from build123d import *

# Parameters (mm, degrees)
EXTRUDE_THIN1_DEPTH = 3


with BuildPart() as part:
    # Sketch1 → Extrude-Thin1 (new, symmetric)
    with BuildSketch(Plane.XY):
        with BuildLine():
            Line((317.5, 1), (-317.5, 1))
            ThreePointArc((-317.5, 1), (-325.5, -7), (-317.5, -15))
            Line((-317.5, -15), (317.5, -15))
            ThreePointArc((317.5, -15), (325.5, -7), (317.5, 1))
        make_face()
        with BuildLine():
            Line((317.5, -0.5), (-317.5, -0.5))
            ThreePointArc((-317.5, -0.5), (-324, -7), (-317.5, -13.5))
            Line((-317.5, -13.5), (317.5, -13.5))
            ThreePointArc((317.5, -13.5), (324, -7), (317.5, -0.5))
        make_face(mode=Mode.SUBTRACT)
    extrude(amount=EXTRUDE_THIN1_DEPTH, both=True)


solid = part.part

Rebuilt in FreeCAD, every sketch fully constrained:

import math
import FreeCAD as App
import Part
import Sketcher

V = App.Vector
Q = App.Units.Quantity

doc = App.newDocument("Part")
body = doc.addObject("PartDesign::Body", "Body")

sketch1 = body.newObject("Sketcher::SketchObject", "Sketch")
sketch1.AttachmentSupport = (doc.getObject("XY_Plane"), [""])
sketch1.MapMode = "FlatFace"
sketch1.addGeometry([
    Part.LineSegment(V(318, 1, 0), V(-318, 1, 0)),
    Part.ArcOfCircle(Part.Circle(V(-318, -7, 0), V(0, 0, 1), 8), math.radians(90), math.radians(270)),
    Part.LineSegment(V(-318, -15, 0), V(318, -15, 0)),
    Part.ArcOfCircle(Part.Circle(V(318, -7, 0), V(0, 0, 1), 8), math.radians(-90), math.radians(90)),
    Part.LineSegment(V(-318, 0, 0), V(318, 0, 0)),
    Part.ArcOfCircle(Part.Circle(V(318, -7, 0), V(0, 0, 1), 6), math.radians(-90), math.radians(90)),
    Part.LineSegment(V(318, -14, 0), V(-318, -14, 0)),
    Part.ArcOfCircle(Part.Circle(V(-318, -7, 0), V(0, 0, 1), 6), math.radians(90), math.radians(270)),
], False)
sketch1.addConstraint([
    Sketcher.Constraint("Tangent", 0, 2, 1, 1),
    Sketcher.Constraint("Tangent", 1, 2, 2, 1),
    Sketcher.Constraint("Tangent", 2, 2, 3, 1),
    Sketcher.Constraint("Tangent", 3, 2, 0, 1),
    Sketcher.Constraint("Tangent", 4, 2, 5, 2),
    Sketcher.Constraint("Tangent", 5, 1, 6, 1),
    Sketcher.Constraint("Tangent", 6, 2, 7, 2),
    Sketcher.Constraint("Tangent", 7, 1, 4, 1),
    Sketcher.Constraint("Horizontal", 0),
    Sketcher.Constraint("Horizontal", 2),
    Sketcher.Constraint("Horizontal", 4),
    Sketcher.Constraint("Horizontal", 6),
    Sketcher.Constraint("Coincident", 5, 3, 3, 3),
    Sketcher.Constraint("Vertical", 7, 3, 0, 2),
    Sketcher.Constraint("Radius", 1, Q("8 mm")),
    Sketcher.Constraint("Radius", 5, Q("6.5 mm")),
    Sketcher.Constraint("DistanceX", 0, 2, 0, 1, Q("635 mm")),
    Sketcher.Constraint("DistanceY", 1, 3, -1, 1, Q("7 mm")),
    Sketcher.Constraint("DistanceX", 1, 3, -1, 1, Q("317.5 mm")),
])
pad1 = body.newObject("PartDesign::Pad", "Pad")
pad1.Profile = sketch1
pad1.Length = 6
pad1.Midplane = True

doc.recompute()
